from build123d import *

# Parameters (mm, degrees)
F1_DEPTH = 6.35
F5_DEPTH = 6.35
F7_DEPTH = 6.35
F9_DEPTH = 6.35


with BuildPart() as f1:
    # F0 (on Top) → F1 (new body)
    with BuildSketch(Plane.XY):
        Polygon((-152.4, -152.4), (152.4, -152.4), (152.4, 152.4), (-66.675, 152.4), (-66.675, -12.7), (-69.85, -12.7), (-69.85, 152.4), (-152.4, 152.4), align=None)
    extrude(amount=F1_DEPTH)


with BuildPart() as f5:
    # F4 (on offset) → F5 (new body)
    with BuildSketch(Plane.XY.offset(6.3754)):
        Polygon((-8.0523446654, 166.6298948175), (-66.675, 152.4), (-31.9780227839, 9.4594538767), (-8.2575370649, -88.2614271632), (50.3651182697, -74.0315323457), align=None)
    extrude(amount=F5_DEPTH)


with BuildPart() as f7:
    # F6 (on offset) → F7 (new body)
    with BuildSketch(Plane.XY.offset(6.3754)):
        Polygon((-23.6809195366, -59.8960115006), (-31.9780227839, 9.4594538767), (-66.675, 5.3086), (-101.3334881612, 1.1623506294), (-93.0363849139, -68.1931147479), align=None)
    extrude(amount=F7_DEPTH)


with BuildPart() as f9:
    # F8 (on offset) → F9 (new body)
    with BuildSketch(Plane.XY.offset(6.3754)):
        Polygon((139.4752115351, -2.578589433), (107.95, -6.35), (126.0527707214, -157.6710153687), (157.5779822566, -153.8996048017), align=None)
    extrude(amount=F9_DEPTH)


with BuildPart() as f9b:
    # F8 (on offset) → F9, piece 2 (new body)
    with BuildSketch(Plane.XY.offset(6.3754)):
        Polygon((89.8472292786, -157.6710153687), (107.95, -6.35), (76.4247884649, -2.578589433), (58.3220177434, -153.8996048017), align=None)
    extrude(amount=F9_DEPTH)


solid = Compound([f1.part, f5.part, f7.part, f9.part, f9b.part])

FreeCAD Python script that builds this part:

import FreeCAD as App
import Part
import Sketcher
from FreeCAD import Vector
Q = App.Units.Quantity


def add_polygon(sketch, points):
    """Adds a closed chain of lines whose ends are joined by coincident constraints."""
    first, n = sketch.GeometryCount, len(points)
    for a, b in zip(points, points[1:] + points[:1]):
        sketch.addGeometry(Part.LineSegment(App.Vector(*a, 0), App.Vector(*b, 0)), False)
    for i in range(n):
        sketch.addConstraint(Sketcher.Constraint("Coincident", first + i, 2, first + (i + 1) % n, 1))

doc = App.newDocument("Part")
body = doc.addObject("PartDesign::Body", "Body")

# Sketch on XY plane
sketch1 = doc.addObject("Sketcher::SketchObject", "Sketch")
body.addObject(sketch1)
sketch1.AttachmentSupport = (doc.XY_Plane, [""])
sketch1.MapMode = "FlatFace"
add_polygon(sketch1, [(-152.4, -152.4), (152.4, -152.4), (152.4, 152.4), (-66.675, 152.4), (-66.675, -12.7), (-69.85, -12.7), (-69.85, 152.4), (-152.4, 152.4)])  # lines 0-7
sketch1.addConstraint([
    Sketcher.Constraint("Horizontal", 0),
    Sketcher.Constraint("Vertical", 1),
    Sketcher.Constraint("Horizontal", 2),
    Sketcher.Constraint("Vertical", 3),
    Sketcher.Constraint("Horizontal", 4),
    Sketcher.Constraint("Vertical", 5),
    Sketcher.Constraint("Horizontal", 6),
    Sketcher.Constraint("Vertical", 7),
    Sketcher.Constraint("Symmetric", 0, 2, 6, 2, -1, 1),
    Sketcher.Constraint("Horizontal", 2, 2, 5, 2),
    Sketcher.Constraint("Equal", 0, 1),
    Sketcher.Constraint("DistanceX", 0, 1, 0, 2, Q("12 in")),
    Sketcher.Constraint("DistanceY", 3, 2, 3, 1, Q("6.5 in")),
    Sketcher.Constraint("DistanceX", 6, 2, 6, 1, Q("3.25 in")),
    Sketcher.Constraint("DistanceX", 2, 2, 2, 1, Q("8.625 in")),
])
pad1 = doc.addObject("PartDesign::Pad", "Pad")
body.addObject(pad1)
pad1.Profile = sketch1
pad1.Length = Q("0.25 in")
body2 = doc.addObject("PartDesign::Body", "Body001")

# Sketch on XY plane
sketch2 = doc.addObject("Sketcher::SketchObject", "Sketch001")
body2.addObject(sketch2)
sketch2.AttachmentSupport = (doc.getObject("XY_Plane001"), [""])
sketch2.MapMode = "FlatFace"
sketch2.AttachmentOffset = App.Placement(Vector(0, 0, 0.251 * 25.4), App.Rotation())
add_polygon(sketch2, [(-8.052345, 166.629895), (-66.675, 152.4), (-8.257537, -88.261427), (50.365118, -74.031532)])  # lines 0-3
sketch2.addConstraint([
    Sketcher.Constraint("Perpendicular", 0, 1),
    Sketcher.Constraint("Perpendicular", 1, 2),
    Sketcher.Constraint("Perpendicular", 2, 3),
    Sketcher.Constraint("DistanceY", -1, 1, 0, 2, Q("6 in")),
    Sketcher.Constraint("Distance", 1, Q("9.75 in")),
    Sketcher.Constraint("Distance", 0, Q("2.375 in")),
    Sketcher.Constraint("DistanceX", 0, 2, -1, 1, Q("2.625 in")),
    Sketcher.Constraint("DistanceX", 1, 2, -1, 1, Q("0.3250999 in")),
])
pad2 = doc.addObject("PartDesign::Pad", "Pad001")
body2.addObject(pad2)
pad2.Profile = sketch2
pad2.Length = Q("0.25 in")
body3 = doc.addObject("PartDesign::Body", "Body002")

# Sketch on XY plane
sketch3 = doc.addObject("Sketcher::SketchObject", "Sketch002")
body3.addObject(sketch3)
sketch3.AttachmentSupport = (doc.getObject("XY_Plane002"), [""])
sketch3.MapMode = "FlatFace"
sketch3.AttachmentOffset = App.Placement(Vector(0, 0, 0.251 * 25.4), App.Rotation())
add_polygon(sketch3, [(-23.68092, -59.896012), (-31.978023, 9.459454), (-101.333488, 1.162351), (-93.036385, -68.193115)])  # lines 0-3
sketch3.addConstraint([
    Sketcher.Constraint("Perpendicular", 0, 1),
    Sketcher.Constraint("Perpendicular", 1, 2),
    Sketcher.Constraint("Perpendicular", 2, 3),
    Sketcher.Constraint("Equal", 0, 1),
    Sketcher.Constraint("Distance", 0, Q("2.75 in")),
    Sketcher.Constraint("DistanceX", 1, 2, -1, 1, 101.333488),
    Sketcher.Constraint("DistanceY", -1, 1, 1, 2, 1.162351),
    Sketcher.Constraint("DistanceX", 3, 2, -1, 1, 23.68092),
])
pad3 = doc.addObject("PartDesign::Pad", "Pad002")
body3.addObject(pad3)
pad3.Profile = sketch3
pad3.Length = Q("0.25 in")
body4 = doc.addObject("PartDesign::Body", "Body003")

# Sketch on XY plane
sketch4 = doc.addObject("Sketcher::SketchObject", "Sketch003")
body4.addObject(sketch4)
sketch4.AttachmentSupport = (doc.getObject("XY_Plane003"), [""])
sketch4.MapMode = "FlatFace"
sketch4.AttachmentOffset = App.Placement(Vector(0, 0, 0.251 * 25.4), App.Rotation())
add_polygon(sketch4, [(139.475212, -2.578589), (107.95, -6.35), (126.052771, -157.671015), (157.577982, -153.899605)])  # lines 0-3
sketch4.addConstraint([
    Sketcher.Constraint("Perpendicular", 0, 1),
    Sketcher.Constraint("Perpendicular", 1, 2),
    Sketcher.Constraint("Perpendicular", 2, 3),
    Sketcher.Constraint("Distance", 1, Q("6 in")),
    Sketcher.Constraint("Distance", 0, Q("1.25 in")),
    Sketcher.Constraint("DistanceX", -1, 1, 0, 2, Q("4.25 in")),
    Sketcher.Constraint("DistanceY", 0, 2, -1, 1, Q("0.25 in")),
    Sketcher.Constraint("DistanceX", -1, 1, 1, 2, 126.052771),
])
pad4 = doc.addObject("PartDesign::Pad", "Pad003")
body4.addObject(pad4)
pad4.Profile = sketch4
pad4.Length = Q("0.25 in")
body5 = doc.addObject("PartDesign::Body", "Body004")

# Sketch on XY plane
sketch5 = doc.addObject("Sketcher::SketchObject", "Sketch004")
body5.addObject(sketch5)
sketch5.AttachmentSupport = (doc.getObject("XY_Plane004"), [""])
sketch5.MapMode = "FlatFace"
sketch5.AttachmentOffset = App.Placement(Vector(0, 0, 0.251 * 25.4), App.Rotation())
add_polygon(sketch5, [(89.847229, -157.671015), (107.95, -6.35), (76.424788, -2.578589), (58.322018, -153.899605)])  # lines 0-3
sketch5.addConstraint([
    Sketcher.Constraint("Perpendicular", 0, 1),
    Sketcher.Constraint("Perpendicular", 1, 2),
    Sketcher.Constraint("Perpendicular", 2, 3),
    Sketcher.Constraint("Distance", 0, Q("6 in")),
    Sketcher.Constraint("Distance", 1, Q("1.25 in")),
    Sketcher.Constraint("DistanceX", -1, 1, 0, 2, Q("4.25 in")),
    Sketcher.Constraint("DistanceY", 0, 2, -1, 1, Q("0.25 in")),
    Sketcher.Constraint("DistanceX", -1, 1, 1, 2, 76.424788),
])
pad5 = doc.addObject("PartDesign::Pad", "Pad004")
body5.addObject(pad5)
pad5.Profile = sketch5
pad5.Length = Q("0.25 in")

doc.recompute()
